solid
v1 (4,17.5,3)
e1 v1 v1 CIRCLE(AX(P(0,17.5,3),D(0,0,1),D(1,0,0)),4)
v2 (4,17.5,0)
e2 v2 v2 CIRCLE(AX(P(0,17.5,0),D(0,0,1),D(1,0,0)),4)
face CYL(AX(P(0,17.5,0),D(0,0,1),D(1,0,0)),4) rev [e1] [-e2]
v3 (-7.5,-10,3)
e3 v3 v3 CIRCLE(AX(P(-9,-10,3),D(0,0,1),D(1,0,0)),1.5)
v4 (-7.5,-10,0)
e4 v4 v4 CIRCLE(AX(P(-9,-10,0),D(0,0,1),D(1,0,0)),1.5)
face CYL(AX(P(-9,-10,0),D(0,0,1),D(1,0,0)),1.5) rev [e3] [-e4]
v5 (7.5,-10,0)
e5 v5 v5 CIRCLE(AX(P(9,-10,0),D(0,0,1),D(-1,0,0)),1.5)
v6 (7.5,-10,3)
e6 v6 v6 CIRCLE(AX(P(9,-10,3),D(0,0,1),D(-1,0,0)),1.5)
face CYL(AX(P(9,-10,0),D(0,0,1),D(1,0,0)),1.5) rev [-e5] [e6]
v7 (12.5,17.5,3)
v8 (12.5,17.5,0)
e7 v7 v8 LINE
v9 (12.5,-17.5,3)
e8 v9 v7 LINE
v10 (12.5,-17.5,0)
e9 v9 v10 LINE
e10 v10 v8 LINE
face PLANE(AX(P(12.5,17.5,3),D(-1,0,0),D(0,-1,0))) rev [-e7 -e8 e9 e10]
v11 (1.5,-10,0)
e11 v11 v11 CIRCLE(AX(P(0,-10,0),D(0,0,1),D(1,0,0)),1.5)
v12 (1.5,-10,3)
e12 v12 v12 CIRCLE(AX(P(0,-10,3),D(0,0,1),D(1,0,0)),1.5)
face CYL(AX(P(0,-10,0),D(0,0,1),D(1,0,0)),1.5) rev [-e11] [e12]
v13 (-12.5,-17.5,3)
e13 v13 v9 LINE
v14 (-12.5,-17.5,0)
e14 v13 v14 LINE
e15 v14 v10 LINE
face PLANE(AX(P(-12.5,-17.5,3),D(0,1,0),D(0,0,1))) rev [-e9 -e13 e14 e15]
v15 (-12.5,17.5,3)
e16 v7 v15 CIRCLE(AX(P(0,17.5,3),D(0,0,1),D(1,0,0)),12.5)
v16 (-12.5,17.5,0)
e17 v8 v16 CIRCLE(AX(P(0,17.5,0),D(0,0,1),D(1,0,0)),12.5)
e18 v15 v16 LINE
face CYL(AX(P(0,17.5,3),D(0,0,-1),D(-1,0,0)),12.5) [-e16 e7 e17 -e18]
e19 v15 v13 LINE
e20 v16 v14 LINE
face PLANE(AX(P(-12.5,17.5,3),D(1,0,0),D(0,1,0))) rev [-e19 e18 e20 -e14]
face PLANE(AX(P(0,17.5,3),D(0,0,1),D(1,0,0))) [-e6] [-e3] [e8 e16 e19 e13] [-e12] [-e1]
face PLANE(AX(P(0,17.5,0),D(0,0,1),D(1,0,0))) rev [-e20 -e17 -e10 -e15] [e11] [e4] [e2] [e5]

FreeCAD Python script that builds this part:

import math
import FreeCAD as App
import Part
import Sketcher
Q = App.Units.Quantity

doc = App.newDocument("Part")
params = doc.addObject("Spreadsheet::Sheet", "Params")
for row, (alias, value) in enumerate([
    ("sketch1_radius", "12.5 mm"),
    ("sketch1_height", "35 mm"),
    ("pad1_length", "3 mm"),
    ("sketch2_diameter", "8 mm"),
    ("sketch3_diameter", "3 mm"),
], start=1):
    params.set(f"A{row}", alias)
    params.set(f"B{row}", "=" + value)
    params.setAlias(f"B{row}", alias)

body = doc.addObject("PartDesign::Body", "Body")

sketch1 = body.newObject("Sketcher::SketchObject", "Sketch")
sketch1.AttachmentSupport = (doc.getObject("XY_Plane"), [""])
sketch1.MapMode = "FlatFace"
sketch1.addGeometry(Part.LineSegment(App.Vector(-12, 18, 0), App.Vector(-12, -18, 0)), False)
sketch1.addGeometry(Part.LineSegment(App.Vector(-12, -18, 0), App.Vector(12, -18, 0)), False)
sketch1.addGeometry(Part.LineSegment(App.Vector(12, -18, 0), App.Vector(12, 18, 0)), False)
sketch1.addGeometry(Part.ArcOfCircle(Part.Circle(App.Vector(0, 18, 0), App.Vector(0, 0, 1), 12), math.radians(0), math.radians(180)), False)
sketch1.addConstraint(Sketcher.Constraint("Coincident", 0, 2, 1, 1))
sketch1.addConstraint(Sketcher.Constraint("Coincident", 1, 2, 2, 1))
sketch1.addConstraint(Sketcher.Constraint("Tangent", 2, 2, 3, 1))
sketch1.addConstraint(Sketcher.Constraint("Tangent", 3, 2, 0, 1))
sketch1.addConstraint(Sketcher.Constraint("Vertical", 0))
sketch1.addConstraint(Sketcher.Constraint("Horizontal", 1))
sketch1.addConstraint(Sketcher.Constraint("Vertical", 2))
sketch1.addConstraint(Sketcher.Constraint("Symmetric", 0, 2, 2, 2, -1, 1))
sketch1.addConstraint(Sketcher.Constraint("Radius", 3, Q("12.5 mm")))
sketch1.addConstraint(Sketcher.Constraint("DistanceY", 0, 2, 0, 1, Q("35 mm")))
sketch1.setExpression("Constraints[8]", "Params.sketch1_radius")
sketch1.setExpression("Constraints[9]", "Params.sketch1_height")
pad1 = body.newObject("PartDesign::Pad", "Pad")
pad1.Profile = sketch1
pad1.setExpression("Length", "Params.pad1_length")

sketch2 = body.newObject("Sketcher::SketchObject", "Sketch001")
sketch2.AttachmentSupport = (doc.getObject("XY_Plane"), [""])
sketch2.MapMode = "FlatFace"
sketch2.AttachmentOffset = App.Placement(App.Vector(0, 0, 3), App.Rotation())
sketch2.addGeometry(Part.Circle(App.Vector(0, 17.5, 0), App.Vector(0, 0, 1), 4), False)
sketch2.addConstraint(Sketcher.Constraint("PointOnObject", 0, 3, -2))
sketch2.addConstraint(Sketcher.Constraint("Diameter", 0, Q("8 mm")))
sketch2.addConstraint(Sketcher.Constraint("DistanceY", -1, 1, 0, 3, Q("17.5 mm")))
sketch2.setExpression("Constraints[1]", "Params.sketch2_diameter")
pocket1 = body.newObject("PartDesign::Pocket", "Pocket")
pocket1.Profile = sketch2
pocket1.Type = "ThroughAll"

sketch3 = body.newObject("Sketcher::SketchObject", "Sketch002")
sketch3.AttachmentSupport = (doc.getObject("XY_Plane"), [""])
sketch3.MapMode = "FlatFace"
sketch3.AttachmentOffset = App.Placement(App.Vector(0, 0, 3), App.Rotation())
sketch3.addGeometry(Part.Circle(App.Vector(-9, -10, 0), App.Vector(0, 0, 1), 1.5), False)
sketch3.addGeometry(Part.Circle(App.Vector(0, -10, 0), App.Vector(0, 0, 1), 1.5), False)
sketch3.addGeometry(Part.Circle(App.Vector(9, -10, 0), App.Vector(0, 0, 1), 1.5), False)
sketch3.addConstraint(Sketcher.Constraint("Equal", 0, 1))
sketch3.addConstraint(Sketcher.Constraint("Equal", 1, 2))
sketch3.addConstraint(Sketcher.Constraint("Symmetric", 0, 3, 2, 3, -2))
sketch3.addConstraint(Sketcher.Constraint("PointOnObject", 1, 3, -2))
sketch3.addConstraint(Sketcher.Constraint("Horizontal", 0, 3, 1, 3))
sketch3.addConstraint(Sketcher.Constraint("Diameter", 0, Q("3 mm")))
sketch3.addConstraint(Sketcher.Constraint("DistanceX", 0, 3, -1, 1, Q("9 mm")))
sketch3.addConstraint(Sketcher.Constraint("DistanceY", 0, 3, -1, 1, Q("10 mm")))
sketch3.setExpression("Constraints[5]", "Params.sketch3_diameter")
pocket2 = body.newObject("PartDesign::Pocket", "Pocket001")
pocket2.Profile = sketch3
pocket2.Type = "ThroughAll"

doc.recompute()
